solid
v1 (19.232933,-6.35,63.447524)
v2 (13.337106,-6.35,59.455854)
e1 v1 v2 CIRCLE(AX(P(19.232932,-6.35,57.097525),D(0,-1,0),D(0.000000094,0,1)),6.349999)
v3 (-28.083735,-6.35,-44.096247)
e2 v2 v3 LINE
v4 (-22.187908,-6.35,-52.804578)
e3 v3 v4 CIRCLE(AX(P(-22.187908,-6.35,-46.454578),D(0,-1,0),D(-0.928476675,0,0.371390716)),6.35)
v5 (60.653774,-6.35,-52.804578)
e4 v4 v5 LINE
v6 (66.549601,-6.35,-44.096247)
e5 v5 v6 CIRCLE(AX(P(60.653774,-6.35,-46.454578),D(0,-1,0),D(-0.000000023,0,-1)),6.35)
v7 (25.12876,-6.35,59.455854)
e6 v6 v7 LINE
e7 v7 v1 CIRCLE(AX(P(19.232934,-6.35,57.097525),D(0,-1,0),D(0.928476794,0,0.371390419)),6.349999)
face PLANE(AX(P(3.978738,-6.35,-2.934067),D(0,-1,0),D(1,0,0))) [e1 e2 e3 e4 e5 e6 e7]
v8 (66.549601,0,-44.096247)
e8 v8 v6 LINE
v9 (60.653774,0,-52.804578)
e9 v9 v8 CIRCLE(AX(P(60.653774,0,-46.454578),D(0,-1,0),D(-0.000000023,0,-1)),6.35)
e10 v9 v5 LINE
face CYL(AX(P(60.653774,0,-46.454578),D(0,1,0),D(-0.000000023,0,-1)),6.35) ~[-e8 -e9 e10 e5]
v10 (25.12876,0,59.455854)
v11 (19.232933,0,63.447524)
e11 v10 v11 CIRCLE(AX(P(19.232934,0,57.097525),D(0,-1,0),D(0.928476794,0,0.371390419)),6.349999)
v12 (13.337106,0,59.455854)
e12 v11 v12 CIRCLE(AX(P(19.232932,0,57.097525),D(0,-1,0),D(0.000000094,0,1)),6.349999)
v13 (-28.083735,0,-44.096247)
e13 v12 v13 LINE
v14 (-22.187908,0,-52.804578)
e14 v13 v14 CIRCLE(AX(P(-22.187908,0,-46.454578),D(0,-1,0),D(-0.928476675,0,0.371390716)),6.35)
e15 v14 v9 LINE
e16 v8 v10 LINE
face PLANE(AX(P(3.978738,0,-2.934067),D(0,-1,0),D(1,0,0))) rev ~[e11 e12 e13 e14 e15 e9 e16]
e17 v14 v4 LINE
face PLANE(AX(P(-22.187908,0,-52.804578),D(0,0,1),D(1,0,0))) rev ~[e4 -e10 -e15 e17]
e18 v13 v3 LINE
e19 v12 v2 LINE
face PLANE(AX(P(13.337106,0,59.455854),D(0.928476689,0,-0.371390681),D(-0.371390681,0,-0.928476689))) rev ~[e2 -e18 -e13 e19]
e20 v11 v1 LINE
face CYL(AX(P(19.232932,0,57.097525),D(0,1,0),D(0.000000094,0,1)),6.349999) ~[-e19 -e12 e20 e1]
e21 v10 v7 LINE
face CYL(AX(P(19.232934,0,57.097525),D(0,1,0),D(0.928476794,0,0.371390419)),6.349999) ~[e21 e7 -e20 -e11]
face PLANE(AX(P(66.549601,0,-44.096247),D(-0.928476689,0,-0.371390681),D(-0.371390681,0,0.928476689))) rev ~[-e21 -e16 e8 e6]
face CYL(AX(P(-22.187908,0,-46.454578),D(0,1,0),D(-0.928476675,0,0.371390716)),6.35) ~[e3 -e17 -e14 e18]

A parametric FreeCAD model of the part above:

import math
import FreeCAD as App
import Part
import Sketcher
from FreeCAD import Vector
Q = App.Units.Quantity

doc = App.newDocument("Part")
body = doc.addObject("PartDesign::Body", "Body")

sketch1 = body.newObject("Sketcher::SketchObject", "Sketch")
sketch1.AttachmentSupport = (doc.getObject("XZ_Plane"), [""])
sketch1.MapMode = "FlatFace"
sketch1.addGeometry(Part.ArcOfCircle(Part.Circle(Vector(19, 57, 0), Vector(0, 0, 1), 6), math.radians(90), math.radians(158)), False)
sketch1.addGeometry(Part.LineSegment(Vector(13, 59, 0), Vector(-28, -44, 0)), False)
sketch1.addGeometry(Part.ArcOfCircle(Part.Circle(Vector(-22, -46, 0), Vector(0, 0, 1), 6), math.radians(158), math.radians(270)), False)
sketch1.addGeometry(Part.LineSegment(Vector(-22, -53, 0), Vector(61, -53, 0)), False)
sketch1.addGeometry(Part.ArcOfCircle(Part.Circle(Vector(61, -46, 0), Vector(0, 0, 1), 6), math.radians(-90), math.radians(22)), False)
sketch1.addGeometry(Part.LineSegment(Vector(67, -44, 0), Vector(25, 59, 0)), False)
sketch1.addGeometry(Part.ArcOfCircle(Part.Circle(Vector(19, 57, 0), Vector(0, 0, 1), 6), math.radians(22), math.radians(90)), False)
sketch1.addConstraint(Sketcher.Constraint("Tangent", 0, 2, 1, 1))
sketch1.addConstraint(Sketcher.Constraint("Tangent", 1, 2, 2, 1))
sketch1.addConstraint(Sketcher.Constraint("Tangent", 2, 2, 3, 1))
sketch1.addConstraint(Sketcher.Constraint("Tangent", 3, 2, 4, 1))
sketch1.addConstraint(Sketcher.Constraint("Tangent", 4, 2, 5, 1))
sketch1.addConstraint(Sketcher.Constraint("Tangent", 5, 2, 6, 1))
sketch1.addConstraint(Sketcher.Constraint("Tangent", 6, 2, 0, 1))
sketch1.addConstraint(Sketcher.Constraint("Horizontal", 3))
sketch1.addConstraint(Sketcher.Constraint("Equal", 0, 2))
sketch1.addConstraint(Sketcher.Constraint("Equal", 2, 4))
sketch1.addConstraint(Sketcher.Constraint("Equal", 4, 6))
sketch1.addConstraint(Sketcher.Constraint("Horizontal", 1, 2, 4, 2))
sketch1.addConstraint(Sketcher.Constraint("Vertical", 0, 3, 6, 2))
sketch1.addConstraint(Sketcher.Constraint("Radius", 0, Q("0.2499999 in")))
sketch1.addConstraint(Sketcher.Constraint("DistanceX", 3, 1, 3, 2, Q("82.841682 mm")))
sketch1.addConstraint(Sketcher.Constraint("DistanceX", -1, 1, 4, 2, Q("66.549601 mm")))
sketch1.addConstraint(Sketcher.Constraint("DistanceY", 1, 2, 0, 2, Q("103.552101 mm")))
sketch1.addConstraint(Sketcher.Constraint("DistanceY", 2, 3, -1, 1, Q("46.454578 mm")))
pad1 = body.newObject("PartDesign::Pad", "Pad")
pad1.Profile = sketch1
pad1.Length = Q("0.25 in")

doc.recompute()
